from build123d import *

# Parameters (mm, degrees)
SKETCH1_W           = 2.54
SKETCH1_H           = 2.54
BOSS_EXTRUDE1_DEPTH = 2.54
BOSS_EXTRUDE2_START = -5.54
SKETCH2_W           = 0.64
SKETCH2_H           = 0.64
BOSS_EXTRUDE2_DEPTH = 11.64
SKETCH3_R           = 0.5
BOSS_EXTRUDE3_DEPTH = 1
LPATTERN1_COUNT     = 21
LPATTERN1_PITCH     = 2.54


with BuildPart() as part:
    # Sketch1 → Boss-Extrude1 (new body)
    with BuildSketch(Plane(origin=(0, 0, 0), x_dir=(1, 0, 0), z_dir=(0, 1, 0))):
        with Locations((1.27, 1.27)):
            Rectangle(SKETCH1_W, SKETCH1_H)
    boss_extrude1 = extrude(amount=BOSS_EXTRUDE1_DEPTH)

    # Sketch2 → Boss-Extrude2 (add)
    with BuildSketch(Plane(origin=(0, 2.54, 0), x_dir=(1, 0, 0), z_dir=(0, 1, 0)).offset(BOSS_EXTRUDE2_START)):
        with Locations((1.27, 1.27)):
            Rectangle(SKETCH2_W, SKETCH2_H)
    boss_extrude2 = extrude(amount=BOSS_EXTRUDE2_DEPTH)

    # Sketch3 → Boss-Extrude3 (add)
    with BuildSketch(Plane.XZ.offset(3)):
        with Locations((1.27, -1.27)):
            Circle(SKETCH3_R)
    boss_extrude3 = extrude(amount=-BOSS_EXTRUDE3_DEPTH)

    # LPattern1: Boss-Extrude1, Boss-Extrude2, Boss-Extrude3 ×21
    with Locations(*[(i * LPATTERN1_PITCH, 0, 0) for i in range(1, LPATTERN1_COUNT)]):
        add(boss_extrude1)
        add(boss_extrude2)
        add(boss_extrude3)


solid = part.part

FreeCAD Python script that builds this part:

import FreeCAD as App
import Part
import Sketcher
from FreeCAD import Vector
Q = App.Units.Quantity


def add_polygon(sketch, points):
    """Adds a closed chain of lines whose ends are joined by coincident constraints."""
    first, n = sketch.GeometryCount, len(points)
    for a, b in zip(points, points[1:] + points[:1]):
        sketch.addGeometry(Part.LineSegment(App.Vector(*a, 0), App.Vector(*b, 0)), False)
    for i in range(n):
        sketch.addConstraint(Sketcher.Constraint("Coincident", first + i, 2, first + (i + 1) % n, 1))

doc = App.newDocument("Part")
body = doc.addObject("PartDesign::Body", "Body")

# Sketch on XZ plane
sketch1 = doc.addObject("Sketcher::SketchObject", "Sketch")
body.addObject(sketch1)
sketch1.AttachmentSupport = (doc.XZ_Plane, [""])
sketch1.MapMode = "FlatFace"
add_polygon(sketch1, [(0, -2.5), (0, 0), (2.5, 0), (2.5, -2.5)])  # lines 0-3
sketch1.addConstraint([
    Sketcher.Constraint("Vertical", 0),
    Sketcher.Constraint("Horizontal", 1),
    Sketcher.Constraint("Vertical", 2),
    Sketcher.Constraint("Horizontal", 3),
    Sketcher.Constraint("Coincident", 0, 2, -1, 1),
    Sketcher.Constraint("Equal", 3, 0),
    Sketcher.Constraint("DistanceX", 1, 1, 1, 2, Q("2.54 mm")),
])
pad1 = doc.addObject("PartDesign::Pad", "Pad")
body.addObject(pad1)
pad1.Profile = sketch1
pad1.Length = 2.54
pad1.Reversed = True

# Sketch on XZ plane
sketch2 = doc.addObject("Sketcher::SketchObject", "Sketch001")
body.addObject(sketch2)
sketch2.AttachmentSupport = (doc.XZ_Plane, [""])
sketch2.MapMode = "FlatFace"
sketch2.AttachmentOffset = App.Placement(Vector(0, 0, 3), App.Rotation())
add_polygon(sketch2, [(0.9, -1.6), (0.9, -0.9), (1.6, -0.9), (1.6, -1.6)])  # lines 0-3
sketch2.addConstraint([
    Sketcher.Constraint("Vertical", 0),
    Sketcher.Constraint("Horizontal", 1),
    Sketcher.Constraint("Vertical", 2),
    Sketcher.Constraint("Horizontal", 3),
    Sketcher.Constraint("Equal", 3, 0),
    Sketcher.Constraint("DistanceX", 1, 1, 1, 2, Q("0.64 mm")),
    Sketcher.Constraint("DistanceX", -1, 1, 0, 2, Q("0.95 mm")),
    Sketcher.Constraint("DistanceY", 0, 2, -1, 1, Q("0.95 mm")),
])
pad2 = doc.addObject("PartDesign::Pad", "Pad001")
body.addObject(pad2)
pad2.Profile = sketch2
pad2.Length = 11.64
pad2.Reversed = True

# Sketch on XZ plane
sketch3 = doc.addObject("Sketcher::SketchObject", "Sketch002")
body.addObject(sketch3)
sketch3.AttachmentSupport = (doc.XZ_Plane, [""])
sketch3.MapMode = "FlatFace"
sketch3.AttachmentOffset = App.Placement(Vector(0, 0, 3), App.Rotation())
sketch3.addGeometry(Part.Circle(Vector(1.3, -1.3, 0), Vector(0, 0, 1), 0.5), False)
sketch3.addConstraint([
    Sketcher.Constraint("Diameter", 0, Q("1 mm")),
    Sketcher.Constraint("DistanceX", -1, 1, 0, 3, Q("1.27 mm")),
    Sketcher.Constraint("DistanceY", 0, 3, -1, 1, Q("1.27 mm")),
])
pad3 = doc.addObject("PartDesign::Pad", "Pad002")
body.addObject(pad3)
pad3.Profile = sketch3
pad3.Length = 1
pad3.Reversed = True
doc.recompute()

linearpattern = doc.addObject("PartDesign::LinearPattern", "LinearPattern")
body.addObject(linearpattern)
linearpattern.Originals = [pad1, pad2, pad3]
linearpattern.Direction = (doc.X_Axis, [""])
linearpattern.Mode = "offset"
linearpattern.Offset = 2.54
linearpattern.Occurrences = 21
body.Tip = linearpattern

doc.recompute()
